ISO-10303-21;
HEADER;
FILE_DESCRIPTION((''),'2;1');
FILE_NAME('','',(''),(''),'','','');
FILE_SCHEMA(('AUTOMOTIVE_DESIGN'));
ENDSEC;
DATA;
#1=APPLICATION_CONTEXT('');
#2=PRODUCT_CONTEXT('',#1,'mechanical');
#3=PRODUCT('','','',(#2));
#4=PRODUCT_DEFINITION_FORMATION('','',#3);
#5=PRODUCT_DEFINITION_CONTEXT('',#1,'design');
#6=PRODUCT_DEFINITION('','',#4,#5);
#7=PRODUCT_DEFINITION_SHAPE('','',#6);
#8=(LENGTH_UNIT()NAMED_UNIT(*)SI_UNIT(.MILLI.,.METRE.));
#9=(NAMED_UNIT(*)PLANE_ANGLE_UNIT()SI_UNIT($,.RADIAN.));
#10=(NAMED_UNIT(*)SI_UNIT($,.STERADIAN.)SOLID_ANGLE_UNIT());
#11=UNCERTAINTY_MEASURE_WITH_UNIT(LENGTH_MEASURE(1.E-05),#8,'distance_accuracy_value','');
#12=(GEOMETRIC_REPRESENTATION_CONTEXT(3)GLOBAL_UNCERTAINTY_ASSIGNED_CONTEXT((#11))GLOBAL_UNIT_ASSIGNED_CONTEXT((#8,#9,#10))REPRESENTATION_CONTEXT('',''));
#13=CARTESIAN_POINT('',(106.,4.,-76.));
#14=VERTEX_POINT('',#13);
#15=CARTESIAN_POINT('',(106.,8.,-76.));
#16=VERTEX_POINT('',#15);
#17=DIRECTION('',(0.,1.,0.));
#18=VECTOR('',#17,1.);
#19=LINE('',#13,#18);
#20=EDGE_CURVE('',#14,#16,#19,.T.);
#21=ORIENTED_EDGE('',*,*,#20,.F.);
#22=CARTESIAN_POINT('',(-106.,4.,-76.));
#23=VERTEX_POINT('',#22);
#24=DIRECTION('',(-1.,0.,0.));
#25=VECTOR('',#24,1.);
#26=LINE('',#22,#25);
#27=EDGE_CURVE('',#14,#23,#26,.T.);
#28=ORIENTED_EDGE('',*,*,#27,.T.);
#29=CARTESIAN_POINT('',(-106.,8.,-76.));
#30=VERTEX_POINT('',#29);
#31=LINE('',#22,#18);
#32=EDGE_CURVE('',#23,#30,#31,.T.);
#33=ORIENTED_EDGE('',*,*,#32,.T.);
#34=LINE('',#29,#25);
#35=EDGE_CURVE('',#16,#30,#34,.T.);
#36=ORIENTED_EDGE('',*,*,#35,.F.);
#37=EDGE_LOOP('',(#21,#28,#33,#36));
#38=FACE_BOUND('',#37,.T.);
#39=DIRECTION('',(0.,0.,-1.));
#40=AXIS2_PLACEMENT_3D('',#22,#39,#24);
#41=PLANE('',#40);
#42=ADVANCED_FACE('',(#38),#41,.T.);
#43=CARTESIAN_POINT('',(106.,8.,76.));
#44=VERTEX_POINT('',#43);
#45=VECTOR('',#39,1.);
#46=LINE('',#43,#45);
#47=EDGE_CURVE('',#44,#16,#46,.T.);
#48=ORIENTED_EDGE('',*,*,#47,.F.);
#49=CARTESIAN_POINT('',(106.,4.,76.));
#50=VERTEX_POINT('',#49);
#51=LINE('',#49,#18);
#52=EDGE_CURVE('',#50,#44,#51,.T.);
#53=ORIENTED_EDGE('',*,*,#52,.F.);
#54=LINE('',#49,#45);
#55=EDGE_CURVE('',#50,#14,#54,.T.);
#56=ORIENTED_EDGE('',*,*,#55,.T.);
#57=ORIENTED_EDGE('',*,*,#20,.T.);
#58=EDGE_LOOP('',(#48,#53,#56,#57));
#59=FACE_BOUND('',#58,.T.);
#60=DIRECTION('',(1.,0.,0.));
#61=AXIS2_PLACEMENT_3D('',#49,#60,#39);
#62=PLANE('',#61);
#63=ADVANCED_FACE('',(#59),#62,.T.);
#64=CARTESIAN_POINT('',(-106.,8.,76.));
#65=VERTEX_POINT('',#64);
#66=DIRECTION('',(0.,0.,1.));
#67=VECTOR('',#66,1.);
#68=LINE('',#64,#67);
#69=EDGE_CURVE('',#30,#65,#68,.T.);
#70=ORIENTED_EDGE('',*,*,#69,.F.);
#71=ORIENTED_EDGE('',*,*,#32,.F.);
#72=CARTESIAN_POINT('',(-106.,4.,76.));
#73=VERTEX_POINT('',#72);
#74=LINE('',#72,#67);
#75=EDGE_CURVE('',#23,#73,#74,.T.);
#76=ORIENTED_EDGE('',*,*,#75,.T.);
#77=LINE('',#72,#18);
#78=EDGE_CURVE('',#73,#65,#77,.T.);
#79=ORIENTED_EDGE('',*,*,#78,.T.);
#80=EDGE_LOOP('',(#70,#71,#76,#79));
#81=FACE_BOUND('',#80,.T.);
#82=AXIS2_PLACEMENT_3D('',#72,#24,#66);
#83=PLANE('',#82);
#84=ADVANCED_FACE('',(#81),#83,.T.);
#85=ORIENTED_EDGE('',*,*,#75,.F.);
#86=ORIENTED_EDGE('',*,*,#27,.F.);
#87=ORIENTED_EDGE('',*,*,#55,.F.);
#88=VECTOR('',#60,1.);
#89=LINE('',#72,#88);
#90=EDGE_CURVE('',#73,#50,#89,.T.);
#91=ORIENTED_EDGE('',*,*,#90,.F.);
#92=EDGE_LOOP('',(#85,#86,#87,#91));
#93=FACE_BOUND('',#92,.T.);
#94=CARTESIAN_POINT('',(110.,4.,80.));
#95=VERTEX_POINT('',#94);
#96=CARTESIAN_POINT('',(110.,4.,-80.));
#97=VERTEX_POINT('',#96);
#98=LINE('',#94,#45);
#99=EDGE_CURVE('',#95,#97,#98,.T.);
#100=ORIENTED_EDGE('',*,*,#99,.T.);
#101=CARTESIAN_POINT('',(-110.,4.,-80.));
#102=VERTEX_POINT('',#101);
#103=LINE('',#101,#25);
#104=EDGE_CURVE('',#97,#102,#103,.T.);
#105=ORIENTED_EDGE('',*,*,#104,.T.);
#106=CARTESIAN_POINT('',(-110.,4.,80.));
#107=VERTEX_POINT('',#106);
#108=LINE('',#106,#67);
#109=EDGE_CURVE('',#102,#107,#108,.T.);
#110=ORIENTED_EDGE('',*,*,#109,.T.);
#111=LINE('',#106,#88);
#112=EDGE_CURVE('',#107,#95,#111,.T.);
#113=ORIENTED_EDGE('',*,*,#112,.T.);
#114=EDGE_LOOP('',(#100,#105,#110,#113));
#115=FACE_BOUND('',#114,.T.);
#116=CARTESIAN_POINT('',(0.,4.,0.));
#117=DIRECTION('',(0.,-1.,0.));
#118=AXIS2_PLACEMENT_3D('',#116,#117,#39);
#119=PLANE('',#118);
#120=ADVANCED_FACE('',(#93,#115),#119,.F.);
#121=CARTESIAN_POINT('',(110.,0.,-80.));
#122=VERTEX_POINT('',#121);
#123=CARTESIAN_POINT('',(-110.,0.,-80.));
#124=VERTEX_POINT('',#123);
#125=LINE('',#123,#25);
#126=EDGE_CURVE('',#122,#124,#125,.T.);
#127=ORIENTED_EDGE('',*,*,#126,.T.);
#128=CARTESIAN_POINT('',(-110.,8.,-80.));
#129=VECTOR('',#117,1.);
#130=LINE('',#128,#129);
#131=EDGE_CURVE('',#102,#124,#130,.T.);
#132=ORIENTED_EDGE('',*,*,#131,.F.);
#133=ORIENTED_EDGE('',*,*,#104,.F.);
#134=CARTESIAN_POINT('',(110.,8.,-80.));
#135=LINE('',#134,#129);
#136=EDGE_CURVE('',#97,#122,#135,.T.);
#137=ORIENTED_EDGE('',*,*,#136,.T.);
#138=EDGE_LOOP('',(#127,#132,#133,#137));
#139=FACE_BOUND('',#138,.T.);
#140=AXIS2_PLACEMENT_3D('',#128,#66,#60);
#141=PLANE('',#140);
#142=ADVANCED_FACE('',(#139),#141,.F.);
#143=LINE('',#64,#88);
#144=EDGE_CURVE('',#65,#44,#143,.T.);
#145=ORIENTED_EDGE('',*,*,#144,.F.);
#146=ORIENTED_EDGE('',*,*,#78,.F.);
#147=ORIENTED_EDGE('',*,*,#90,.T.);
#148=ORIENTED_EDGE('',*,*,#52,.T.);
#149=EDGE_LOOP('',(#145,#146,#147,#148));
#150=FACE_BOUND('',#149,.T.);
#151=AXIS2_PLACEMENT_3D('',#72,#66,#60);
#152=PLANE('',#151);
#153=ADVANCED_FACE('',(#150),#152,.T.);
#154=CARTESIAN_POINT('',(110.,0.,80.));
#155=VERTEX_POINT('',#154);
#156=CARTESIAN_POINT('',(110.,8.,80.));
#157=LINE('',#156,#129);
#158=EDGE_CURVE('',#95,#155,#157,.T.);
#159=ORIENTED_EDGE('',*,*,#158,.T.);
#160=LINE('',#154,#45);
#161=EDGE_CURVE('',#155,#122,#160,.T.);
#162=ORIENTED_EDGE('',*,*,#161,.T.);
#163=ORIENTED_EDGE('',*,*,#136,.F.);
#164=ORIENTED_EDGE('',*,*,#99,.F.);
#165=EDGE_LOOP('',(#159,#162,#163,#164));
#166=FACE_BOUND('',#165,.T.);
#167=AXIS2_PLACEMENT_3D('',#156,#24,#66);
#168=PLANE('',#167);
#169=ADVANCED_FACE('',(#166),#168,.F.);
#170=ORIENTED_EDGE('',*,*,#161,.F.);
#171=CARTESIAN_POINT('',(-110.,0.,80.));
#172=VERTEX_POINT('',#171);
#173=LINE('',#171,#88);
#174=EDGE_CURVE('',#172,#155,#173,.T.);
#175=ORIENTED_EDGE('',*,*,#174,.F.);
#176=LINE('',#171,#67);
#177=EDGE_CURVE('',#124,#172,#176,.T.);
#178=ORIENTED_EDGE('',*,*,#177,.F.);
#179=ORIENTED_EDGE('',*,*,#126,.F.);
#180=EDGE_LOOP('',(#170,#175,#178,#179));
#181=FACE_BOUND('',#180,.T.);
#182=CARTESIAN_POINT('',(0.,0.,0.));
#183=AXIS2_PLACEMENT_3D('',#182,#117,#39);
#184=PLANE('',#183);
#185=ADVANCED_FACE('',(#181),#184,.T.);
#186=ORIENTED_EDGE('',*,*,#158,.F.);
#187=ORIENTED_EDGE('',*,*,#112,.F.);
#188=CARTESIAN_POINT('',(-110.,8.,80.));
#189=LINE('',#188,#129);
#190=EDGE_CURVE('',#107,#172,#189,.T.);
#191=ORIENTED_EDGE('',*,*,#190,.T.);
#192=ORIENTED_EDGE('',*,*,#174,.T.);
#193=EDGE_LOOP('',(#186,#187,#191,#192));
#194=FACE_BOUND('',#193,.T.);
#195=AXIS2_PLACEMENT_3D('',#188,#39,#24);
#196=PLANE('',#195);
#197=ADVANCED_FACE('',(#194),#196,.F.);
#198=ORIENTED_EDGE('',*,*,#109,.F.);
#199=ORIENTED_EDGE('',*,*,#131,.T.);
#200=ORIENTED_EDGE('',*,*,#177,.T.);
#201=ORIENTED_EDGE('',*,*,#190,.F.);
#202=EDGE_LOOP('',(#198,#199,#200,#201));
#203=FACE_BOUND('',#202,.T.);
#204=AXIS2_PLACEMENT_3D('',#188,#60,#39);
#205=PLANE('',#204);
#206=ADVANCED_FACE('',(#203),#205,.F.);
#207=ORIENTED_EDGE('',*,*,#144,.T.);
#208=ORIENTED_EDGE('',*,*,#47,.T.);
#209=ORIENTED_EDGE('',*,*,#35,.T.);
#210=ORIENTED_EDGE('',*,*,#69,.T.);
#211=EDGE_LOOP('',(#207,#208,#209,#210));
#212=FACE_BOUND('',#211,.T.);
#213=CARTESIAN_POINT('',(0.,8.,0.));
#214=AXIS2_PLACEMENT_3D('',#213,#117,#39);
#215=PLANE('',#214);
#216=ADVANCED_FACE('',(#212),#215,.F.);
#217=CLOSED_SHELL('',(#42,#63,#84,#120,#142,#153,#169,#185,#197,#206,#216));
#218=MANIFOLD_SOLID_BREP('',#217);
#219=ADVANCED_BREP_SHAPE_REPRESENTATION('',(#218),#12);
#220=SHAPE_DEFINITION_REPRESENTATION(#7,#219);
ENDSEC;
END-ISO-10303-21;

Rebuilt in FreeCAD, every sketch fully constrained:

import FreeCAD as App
import Part
import Sketcher
from FreeCAD import Vector

doc = App.newDocument("Part")
body = doc.addObject("PartDesign::Body", "Body")

sketch1 = doc.addObject("Sketcher::SketchObject", "Sketch")
body.addObject(sketch1)
sketch1.AttachmentSupport = (doc.XZ_Plane, [""])
sketch1.MapMode = "FlatFace"
sketch1.addGeometry(Part.LineSegment(Vector(-110, -80, 0), Vector(-110, 80, 0)), False)
sketch1.addGeometry(Part.LineSegment(Vector(-110, 80, 0), Vector(110, 80, 0)), False)
sketch1.addGeometry(Part.LineSegment(Vector(110, 80, 0), Vector(110, -80, 0)), False)
sketch1.addGeometry(Part.LineSegment(Vector(110, -80, 0), Vector(-110, -80, 0)), False)
sketch1.addConstraint(Sketcher.Constraint("Coincident", 0, 2, 1, 1))
sketch1.addConstraint(Sketcher.Constraint("Coincident", 1, 2, 2, 1))
sketch1.addConstraint(Sketcher.Constraint("Coincident", 2, 2, 3, 1))
sketch1.addConstraint(Sketcher.Constraint("Coincident", 3, 2, 0, 1))
sketch1.addConstraint(Sketcher.Constraint("Vertical", 0))
sketch1.addConstraint(Sketcher.Constraint("Horizontal", 1))
sketch1.addConstraint(Sketcher.Constraint("Vertical", 2))
sketch1.addConstraint(Sketcher.Constraint("Horizontal", 3))
sketch1.addConstraint(Sketcher.Constraint("Symmetric", 0, 2, 2, 2, -1, 1))
sketch1.addConstraint(Sketcher.Constraint("DistanceX", 1, 1, 1, 2, 220.0))
sketch1.addConstraint(Sketcher.Constraint("DistanceY", 0, 1, 0, 2, 160.0))
pad1 = doc.addObject("PartDesign::Pad", "Pad")
body.addObject(pad1)
pad1.Profile = sketch1
pad1.Length = 8
pad1.Reversed = True

sketch2 = doc.addObject("Sketcher::SketchObject", "Sketch001")
body.addObject(sketch2)
sketch2.AttachmentSupport = (doc.XZ_Plane, [""])
sketch2.MapMode = "FlatFace"
sketch2.AttachmentOffset = App.Placement(Vector(0, 0, -8), App.Rotation())
sketch2.addGeometry(Part.LineSegment(Vector(-110, -80, 0), Vector(-110, 80, 0)), False)
sketch2.addGeometry(Part.LineSegment(Vector(-110, 80, 0), Vector(110, 80, 0)), False)
sketch2.addGeometry(Part.LineSegment(Vector(110, 80, 0), Vector(110, -80, 0)), False)
sketch2.addGeometry(Part.LineSegment(Vector(110, -80, 0), Vector(-110, -80, 0)), False)
sketch2.addGeometry(Part.LineSegment(Vector(106, 76, 0), Vector(-106, 76, 0)), False)
sketch2.addGeometry(Part.LineSegment(Vector(-106, 76, 0), Vector(-106, -76, 0)), False)
sketch2.addGeometry(Part.LineSegment(Vector(-106, -76, 0), Vector(106, -76, 0)), False)
sketch2.addGeometry(Part.LineSegment(Vector(106, -76, 0), Vector(106, 76, 0)), False)
sketch2.addConstraint(Sketcher.Constraint("Coincident", 0, 2, 1, 1))
sketch2.addConstraint(Sketcher.Constraint("Coincident", 1, 2, 2, 1))
sketch2.addConstraint(Sketcher.Constraint("Coincident", 2, 2, 3, 1))
sketch2.addConstraint(Sketcher.Constraint("Coincident", 3, 2, 0, 1))
sketch2.addConstraint(Sketcher.Constraint("Coincident", 4, 2, 5, 1))
sketch2.addConstraint(Sketcher.Constraint("Coincident", 5, 2, 6, 1))
sketch2.addConstraint(Sketcher.Constraint("Coincident", 6, 2, 7, 1))
sketch2.addConstraint(Sketcher.Constraint("Coincident", 7, 2, 4, 1))
sketch2.addConstraint(Sketcher.Constraint("Vertical", 0))
sketch2.addConstraint(Sketcher.Constraint("Horizontal", 1))
sketch2.addConstraint(Sketcher.Constraint("Vertical", 2))
sketch2.addConstraint(Sketcher.Constraint("Horizontal", 3))
sketch2.addConstraint(Sketcher.Constraint("Horizontal", 4))
sketch2.addConstraint(Sketcher.Constraint("Vertical", 5))
sketch2.addConstraint(Sketcher.Constraint("Horizontal", 6))
sketch2.addConstraint(Sketcher.Constraint("Vertical", 7))
sketch2.addConstraint(Sketcher.Constraint("Symmetric", 0, 2, 2, 2, -1, 1))
sketch2.addConstraint(Sketcher.Constraint("Symmetric", 4, 2, 6, 2, -1, 1))
sketch2.addConstraint(Sketcher.Constraint("DistanceX", 1, 1, 1, 2, 220.0))
sketch2.addConstraint(Sketcher.Constraint("DistanceX", 4, 2, 4, 1, 212.0))
sketch2.addConstraint(Sketcher.Constraint("DistanceY", 0, 1, 0, 2, 160.0))
sketch2.addConstraint(Sketcher.Constraint("DistanceY", 5, 2, 5, 1, 152.0))
pocket1 = doc.addObject("PartDesign::Pocket", "Pocket")
body.addObject(pocket1)
pocket1.Profile = sketch2
pocket1.Length = 4
pocket1.Reversed = True

doc.recompute()
